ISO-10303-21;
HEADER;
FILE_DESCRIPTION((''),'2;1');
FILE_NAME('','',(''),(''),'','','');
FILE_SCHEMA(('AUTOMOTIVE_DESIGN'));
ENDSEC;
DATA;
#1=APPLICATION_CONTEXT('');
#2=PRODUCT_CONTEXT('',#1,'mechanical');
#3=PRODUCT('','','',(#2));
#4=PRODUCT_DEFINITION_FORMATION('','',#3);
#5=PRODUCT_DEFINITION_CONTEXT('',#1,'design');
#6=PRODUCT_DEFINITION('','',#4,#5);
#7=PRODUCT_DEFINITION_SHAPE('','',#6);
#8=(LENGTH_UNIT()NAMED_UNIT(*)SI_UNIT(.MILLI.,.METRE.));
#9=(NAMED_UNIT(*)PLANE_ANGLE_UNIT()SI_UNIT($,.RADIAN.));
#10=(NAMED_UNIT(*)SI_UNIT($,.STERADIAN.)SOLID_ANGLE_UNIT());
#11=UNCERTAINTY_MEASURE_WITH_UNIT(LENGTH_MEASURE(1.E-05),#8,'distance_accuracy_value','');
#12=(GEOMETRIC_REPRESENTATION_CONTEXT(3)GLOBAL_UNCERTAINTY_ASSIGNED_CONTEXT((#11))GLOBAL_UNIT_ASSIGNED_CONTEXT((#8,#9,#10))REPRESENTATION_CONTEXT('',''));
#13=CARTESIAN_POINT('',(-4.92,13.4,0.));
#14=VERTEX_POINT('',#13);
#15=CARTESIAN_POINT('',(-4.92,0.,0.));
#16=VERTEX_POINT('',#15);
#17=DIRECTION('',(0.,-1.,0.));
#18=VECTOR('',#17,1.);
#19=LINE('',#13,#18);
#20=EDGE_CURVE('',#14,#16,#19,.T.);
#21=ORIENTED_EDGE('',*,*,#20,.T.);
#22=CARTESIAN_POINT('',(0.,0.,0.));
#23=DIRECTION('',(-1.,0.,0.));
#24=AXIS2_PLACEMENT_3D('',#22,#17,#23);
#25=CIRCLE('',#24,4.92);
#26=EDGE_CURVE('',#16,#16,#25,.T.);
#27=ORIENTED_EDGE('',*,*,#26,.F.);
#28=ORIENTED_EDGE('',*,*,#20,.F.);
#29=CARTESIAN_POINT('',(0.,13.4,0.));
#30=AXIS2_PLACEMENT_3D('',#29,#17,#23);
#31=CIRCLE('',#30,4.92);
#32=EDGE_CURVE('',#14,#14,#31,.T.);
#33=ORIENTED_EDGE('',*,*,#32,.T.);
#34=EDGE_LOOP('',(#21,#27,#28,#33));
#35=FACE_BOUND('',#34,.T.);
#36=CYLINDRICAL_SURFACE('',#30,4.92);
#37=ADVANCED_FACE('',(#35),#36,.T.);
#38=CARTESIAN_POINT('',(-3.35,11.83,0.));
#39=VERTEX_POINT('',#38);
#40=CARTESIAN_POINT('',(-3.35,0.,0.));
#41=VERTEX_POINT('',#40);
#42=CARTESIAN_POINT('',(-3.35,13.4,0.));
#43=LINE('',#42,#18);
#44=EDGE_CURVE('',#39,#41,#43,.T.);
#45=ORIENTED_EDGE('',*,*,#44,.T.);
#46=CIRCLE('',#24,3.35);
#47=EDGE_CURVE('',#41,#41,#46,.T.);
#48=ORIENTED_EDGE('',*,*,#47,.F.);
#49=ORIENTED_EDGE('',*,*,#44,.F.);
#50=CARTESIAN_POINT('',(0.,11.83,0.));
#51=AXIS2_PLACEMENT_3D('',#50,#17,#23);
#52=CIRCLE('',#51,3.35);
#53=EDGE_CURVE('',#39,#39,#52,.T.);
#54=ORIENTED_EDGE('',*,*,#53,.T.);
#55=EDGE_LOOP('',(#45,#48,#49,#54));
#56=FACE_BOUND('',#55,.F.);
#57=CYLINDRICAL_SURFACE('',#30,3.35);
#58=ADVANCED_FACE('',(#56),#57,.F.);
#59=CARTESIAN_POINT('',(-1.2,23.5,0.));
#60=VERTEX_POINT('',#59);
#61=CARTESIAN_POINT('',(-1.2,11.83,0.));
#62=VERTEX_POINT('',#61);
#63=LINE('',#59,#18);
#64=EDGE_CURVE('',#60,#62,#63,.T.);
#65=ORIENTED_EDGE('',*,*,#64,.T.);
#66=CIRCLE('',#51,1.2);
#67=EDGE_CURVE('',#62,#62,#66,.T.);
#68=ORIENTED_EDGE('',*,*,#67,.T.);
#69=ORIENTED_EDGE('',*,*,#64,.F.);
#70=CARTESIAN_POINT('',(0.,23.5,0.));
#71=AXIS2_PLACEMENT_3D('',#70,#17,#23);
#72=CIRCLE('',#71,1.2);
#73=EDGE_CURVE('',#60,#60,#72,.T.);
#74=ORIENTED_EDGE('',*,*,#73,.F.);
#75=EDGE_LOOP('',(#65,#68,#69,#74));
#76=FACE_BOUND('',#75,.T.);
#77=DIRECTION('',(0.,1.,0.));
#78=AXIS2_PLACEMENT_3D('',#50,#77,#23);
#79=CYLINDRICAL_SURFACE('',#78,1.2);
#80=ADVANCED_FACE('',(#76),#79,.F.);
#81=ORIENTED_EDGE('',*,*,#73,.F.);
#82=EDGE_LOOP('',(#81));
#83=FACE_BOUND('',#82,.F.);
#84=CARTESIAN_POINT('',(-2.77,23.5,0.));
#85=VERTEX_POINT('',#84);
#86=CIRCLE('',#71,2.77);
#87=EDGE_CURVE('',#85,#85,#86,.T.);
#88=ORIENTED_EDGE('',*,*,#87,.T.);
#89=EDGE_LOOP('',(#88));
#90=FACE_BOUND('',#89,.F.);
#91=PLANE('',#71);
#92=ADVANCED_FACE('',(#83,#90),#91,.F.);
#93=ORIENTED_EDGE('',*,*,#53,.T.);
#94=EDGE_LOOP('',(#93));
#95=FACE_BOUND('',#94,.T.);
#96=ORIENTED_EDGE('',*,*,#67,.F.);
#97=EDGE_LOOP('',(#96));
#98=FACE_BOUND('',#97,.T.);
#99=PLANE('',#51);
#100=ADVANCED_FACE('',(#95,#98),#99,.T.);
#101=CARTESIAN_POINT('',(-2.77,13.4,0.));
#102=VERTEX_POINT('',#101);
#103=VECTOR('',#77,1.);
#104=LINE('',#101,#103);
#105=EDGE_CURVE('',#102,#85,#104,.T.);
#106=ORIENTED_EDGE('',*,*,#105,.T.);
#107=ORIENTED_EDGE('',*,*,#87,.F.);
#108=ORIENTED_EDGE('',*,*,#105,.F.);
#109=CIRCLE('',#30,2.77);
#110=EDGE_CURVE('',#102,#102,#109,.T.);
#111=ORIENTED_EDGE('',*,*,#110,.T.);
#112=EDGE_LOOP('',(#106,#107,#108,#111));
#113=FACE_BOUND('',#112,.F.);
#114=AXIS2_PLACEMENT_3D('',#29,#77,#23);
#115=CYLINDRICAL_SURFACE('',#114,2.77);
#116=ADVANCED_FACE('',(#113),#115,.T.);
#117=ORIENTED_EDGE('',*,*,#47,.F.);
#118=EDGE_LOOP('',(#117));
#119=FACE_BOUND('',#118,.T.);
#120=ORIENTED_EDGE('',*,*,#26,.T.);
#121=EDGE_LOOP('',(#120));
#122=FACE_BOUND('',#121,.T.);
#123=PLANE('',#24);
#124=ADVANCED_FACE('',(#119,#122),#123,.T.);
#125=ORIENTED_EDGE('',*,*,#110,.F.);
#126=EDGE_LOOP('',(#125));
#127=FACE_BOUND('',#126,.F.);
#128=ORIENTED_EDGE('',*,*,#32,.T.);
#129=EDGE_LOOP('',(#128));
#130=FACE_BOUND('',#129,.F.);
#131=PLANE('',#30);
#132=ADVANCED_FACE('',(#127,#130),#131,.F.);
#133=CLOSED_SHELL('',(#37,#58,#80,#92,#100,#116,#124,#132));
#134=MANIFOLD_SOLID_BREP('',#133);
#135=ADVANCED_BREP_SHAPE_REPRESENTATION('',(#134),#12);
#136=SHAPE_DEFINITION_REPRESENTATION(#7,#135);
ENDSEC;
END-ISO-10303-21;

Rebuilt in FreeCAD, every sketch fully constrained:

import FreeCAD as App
import Part
import Sketcher

V = App.Vector

doc = App.newDocument("Part")
body = doc.addObject("PartDesign::Body", "Body")

# Sketch on XY plane
sketch1 = doc.addObject("Sketcher::SketchObject", "Sketch")
body.addObject(sketch1)
sketch1.AttachmentSupport = (doc.XY_Plane, [""])
sketch1.MapMode = "FlatFace"
sketch1.addGeometry([
    Part.LineSegment(V(-2.8, 13.4, 0), V(-4.9, 13.4, 0)),  # 0
    Part.LineSegment(V(-4.9, 13.4, 0), V(-4.9, 0, 0)),  # 1
    Part.LineSegment(V(-4.9, 0, 0), V(-3.4, 0, 0)),  # 2
    Part.LineSegment(V(-3.4, 0, 0), V(-3.4, 11.8, 0)),  # 3
    Part.LineSegment(V(-3.4, 11.8, 0), V(-1.2, 11.8, 0)),  # 4
    Part.LineSegment(V(-1.2, 11.8, 0), V(-1.2, 23.5, 0)),  # 5
    Part.LineSegment(V(-1.2, 23.5, 0), V(-2.8, 23.5, 0)),  # 6
    Part.LineSegment(V(-2.8, 23.5, 0), V(-2.8, 13.4, 0)),  # 7
], False)
sketch1.addConstraint([
    Sketcher.Constraint("Coincident", 0, 2, 1, 1),
    Sketcher.Constraint("Coincident", 1, 2, 2, 1),
    Sketcher.Constraint("Coincident", 2, 2, 3, 1),
    Sketcher.Constraint("Coincident", 3, 2, 4, 1),
    Sketcher.Constraint("Coincident", 4, 2, 5, 1),
    Sketcher.Constraint("Coincident", 5, 2, 6, 1),
    Sketcher.Constraint("Coincident", 6, 2, 7, 1),
    Sketcher.Constraint("Coincident", 7, 2, 0, 1),
    Sketcher.Constraint("Horizontal", 0),
    Sketcher.Constraint("Vertical", 1),
    Sketcher.Constraint("Horizontal", 2),
    Sketcher.Constraint("Vertical", 3),
    Sketcher.Constraint("Horizontal", 4),
    Sketcher.Constraint("Vertical", 5),
    Sketcher.Constraint("Horizontal", 6),
    Sketcher.Constraint("Vertical", 7),
    Sketcher.Constraint("PointOnObject", 1, 2, -1),
    Sketcher.Constraint("Equal", 0, 4),
    Sketcher.Constraint("DistanceY", 1, 2, 1, 1, 13.4),
    Sketcher.Constraint("DistanceX", 2, 1, 2, 2, 1.57),
    Sketcher.Constraint("DistanceX", 4, 2, -1, 1, 1.2),
    Sketcher.Constraint("DistanceY", -1, 1, 5, 2, 23.5),
    Sketcher.Constraint("DistanceX", 2, 2, -1, 1, 3.35),
    Sketcher.Constraint("DistanceY", 3, 2, 0, 2, 1.57),
])
revolution = doc.addObject("PartDesign::Revolution", "Revolution")
body.addObject(revolution)
revolution.Profile = sketch1
revolution.ReferenceAxis = (sketch1, ["V_Axis"])
revolution.Angle = 360

doc.recompute()
